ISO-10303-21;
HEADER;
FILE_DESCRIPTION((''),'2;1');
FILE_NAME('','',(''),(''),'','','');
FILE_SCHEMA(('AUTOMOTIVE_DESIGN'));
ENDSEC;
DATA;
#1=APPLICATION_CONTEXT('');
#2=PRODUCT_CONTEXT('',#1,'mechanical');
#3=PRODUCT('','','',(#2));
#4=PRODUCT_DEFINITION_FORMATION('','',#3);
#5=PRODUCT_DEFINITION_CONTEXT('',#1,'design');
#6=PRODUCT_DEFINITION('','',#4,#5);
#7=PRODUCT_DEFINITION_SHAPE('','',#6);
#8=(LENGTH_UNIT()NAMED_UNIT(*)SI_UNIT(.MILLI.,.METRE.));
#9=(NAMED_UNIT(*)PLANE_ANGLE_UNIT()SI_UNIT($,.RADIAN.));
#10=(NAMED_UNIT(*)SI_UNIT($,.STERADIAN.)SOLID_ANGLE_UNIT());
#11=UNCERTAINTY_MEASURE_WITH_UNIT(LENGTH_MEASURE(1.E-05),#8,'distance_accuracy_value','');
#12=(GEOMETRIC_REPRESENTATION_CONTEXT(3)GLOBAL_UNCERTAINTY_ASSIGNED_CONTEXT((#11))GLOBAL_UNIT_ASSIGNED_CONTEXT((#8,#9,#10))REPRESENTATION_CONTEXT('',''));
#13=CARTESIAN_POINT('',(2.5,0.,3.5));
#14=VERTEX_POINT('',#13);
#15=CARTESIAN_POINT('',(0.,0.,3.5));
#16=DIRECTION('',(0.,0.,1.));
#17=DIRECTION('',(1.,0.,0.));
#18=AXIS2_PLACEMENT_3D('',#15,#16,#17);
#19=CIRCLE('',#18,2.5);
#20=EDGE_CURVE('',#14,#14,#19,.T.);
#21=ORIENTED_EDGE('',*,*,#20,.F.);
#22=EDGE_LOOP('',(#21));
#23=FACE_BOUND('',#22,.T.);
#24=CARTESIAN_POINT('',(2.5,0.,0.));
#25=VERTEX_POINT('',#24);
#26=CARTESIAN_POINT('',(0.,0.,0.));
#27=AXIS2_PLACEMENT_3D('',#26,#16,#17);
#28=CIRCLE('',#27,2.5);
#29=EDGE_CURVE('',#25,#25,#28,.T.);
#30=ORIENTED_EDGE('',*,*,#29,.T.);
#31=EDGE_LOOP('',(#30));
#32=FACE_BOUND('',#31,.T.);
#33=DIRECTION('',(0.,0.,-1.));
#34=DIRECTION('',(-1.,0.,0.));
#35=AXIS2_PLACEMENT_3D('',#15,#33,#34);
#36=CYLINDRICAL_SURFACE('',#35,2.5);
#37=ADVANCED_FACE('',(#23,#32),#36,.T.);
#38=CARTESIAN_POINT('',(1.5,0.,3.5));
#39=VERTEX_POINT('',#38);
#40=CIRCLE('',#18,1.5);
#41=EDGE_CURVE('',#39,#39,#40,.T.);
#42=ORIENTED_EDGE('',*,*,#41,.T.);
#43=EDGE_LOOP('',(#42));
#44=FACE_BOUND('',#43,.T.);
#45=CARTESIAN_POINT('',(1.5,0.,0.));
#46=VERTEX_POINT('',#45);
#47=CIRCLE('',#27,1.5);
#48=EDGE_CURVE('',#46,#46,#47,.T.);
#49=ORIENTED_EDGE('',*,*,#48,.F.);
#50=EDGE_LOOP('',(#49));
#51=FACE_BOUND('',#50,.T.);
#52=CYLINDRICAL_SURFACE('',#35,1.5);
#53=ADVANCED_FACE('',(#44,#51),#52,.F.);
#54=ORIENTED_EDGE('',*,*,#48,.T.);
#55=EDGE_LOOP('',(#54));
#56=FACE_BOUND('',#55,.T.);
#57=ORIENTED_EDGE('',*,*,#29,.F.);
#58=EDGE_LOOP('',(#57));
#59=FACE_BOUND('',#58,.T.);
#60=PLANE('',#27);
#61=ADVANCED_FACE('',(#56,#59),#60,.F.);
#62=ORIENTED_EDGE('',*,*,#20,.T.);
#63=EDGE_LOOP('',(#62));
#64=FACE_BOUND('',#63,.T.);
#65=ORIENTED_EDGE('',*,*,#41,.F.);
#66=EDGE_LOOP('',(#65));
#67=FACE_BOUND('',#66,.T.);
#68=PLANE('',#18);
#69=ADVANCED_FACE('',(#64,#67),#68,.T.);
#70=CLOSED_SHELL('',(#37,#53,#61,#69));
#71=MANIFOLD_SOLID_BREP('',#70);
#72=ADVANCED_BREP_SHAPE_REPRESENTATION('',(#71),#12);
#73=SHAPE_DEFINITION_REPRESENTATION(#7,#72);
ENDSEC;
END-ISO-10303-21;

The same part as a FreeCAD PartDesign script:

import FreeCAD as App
import Part
import Sketcher

doc = App.newDocument("Part")
body = doc.addObject("PartDesign::Body", "Body")

# Sketch on XY plane
sketch1 = body.newObject("Sketcher::SketchObject", "Sketch")
sketch1.AttachmentSupport = (doc.getObject("XY_Plane"), [""])
sketch1.MapMode = "FlatFace"
sketch1.addGeometry(Part.Circle(App.Vector(0, 0, 0), App.Vector(0, 0, 1), 2.5), False)
sketch1.addGeometry(Part.Circle(App.Vector(0, 0, 0), App.Vector(0, 0, 1), 1.5), False)
sketch1.addConstraint(Sketcher.Constraint("Coincident", 0, 3, -1, 1))
sketch1.addConstraint(Sketcher.Constraint("Coincident", 1, 3, -1, 1))
sketch1.addConstraint(Sketcher.Constraint("Diameter", 0, 5.0))
sketch1.addConstraint(Sketcher.Constraint("Diameter", 1, 3.0))
pad1 = body.newObject("PartDesign::Pad", "Pad")
pad1.Profile = sketch1
pad1.Length = 3.5

doc.recompute()
